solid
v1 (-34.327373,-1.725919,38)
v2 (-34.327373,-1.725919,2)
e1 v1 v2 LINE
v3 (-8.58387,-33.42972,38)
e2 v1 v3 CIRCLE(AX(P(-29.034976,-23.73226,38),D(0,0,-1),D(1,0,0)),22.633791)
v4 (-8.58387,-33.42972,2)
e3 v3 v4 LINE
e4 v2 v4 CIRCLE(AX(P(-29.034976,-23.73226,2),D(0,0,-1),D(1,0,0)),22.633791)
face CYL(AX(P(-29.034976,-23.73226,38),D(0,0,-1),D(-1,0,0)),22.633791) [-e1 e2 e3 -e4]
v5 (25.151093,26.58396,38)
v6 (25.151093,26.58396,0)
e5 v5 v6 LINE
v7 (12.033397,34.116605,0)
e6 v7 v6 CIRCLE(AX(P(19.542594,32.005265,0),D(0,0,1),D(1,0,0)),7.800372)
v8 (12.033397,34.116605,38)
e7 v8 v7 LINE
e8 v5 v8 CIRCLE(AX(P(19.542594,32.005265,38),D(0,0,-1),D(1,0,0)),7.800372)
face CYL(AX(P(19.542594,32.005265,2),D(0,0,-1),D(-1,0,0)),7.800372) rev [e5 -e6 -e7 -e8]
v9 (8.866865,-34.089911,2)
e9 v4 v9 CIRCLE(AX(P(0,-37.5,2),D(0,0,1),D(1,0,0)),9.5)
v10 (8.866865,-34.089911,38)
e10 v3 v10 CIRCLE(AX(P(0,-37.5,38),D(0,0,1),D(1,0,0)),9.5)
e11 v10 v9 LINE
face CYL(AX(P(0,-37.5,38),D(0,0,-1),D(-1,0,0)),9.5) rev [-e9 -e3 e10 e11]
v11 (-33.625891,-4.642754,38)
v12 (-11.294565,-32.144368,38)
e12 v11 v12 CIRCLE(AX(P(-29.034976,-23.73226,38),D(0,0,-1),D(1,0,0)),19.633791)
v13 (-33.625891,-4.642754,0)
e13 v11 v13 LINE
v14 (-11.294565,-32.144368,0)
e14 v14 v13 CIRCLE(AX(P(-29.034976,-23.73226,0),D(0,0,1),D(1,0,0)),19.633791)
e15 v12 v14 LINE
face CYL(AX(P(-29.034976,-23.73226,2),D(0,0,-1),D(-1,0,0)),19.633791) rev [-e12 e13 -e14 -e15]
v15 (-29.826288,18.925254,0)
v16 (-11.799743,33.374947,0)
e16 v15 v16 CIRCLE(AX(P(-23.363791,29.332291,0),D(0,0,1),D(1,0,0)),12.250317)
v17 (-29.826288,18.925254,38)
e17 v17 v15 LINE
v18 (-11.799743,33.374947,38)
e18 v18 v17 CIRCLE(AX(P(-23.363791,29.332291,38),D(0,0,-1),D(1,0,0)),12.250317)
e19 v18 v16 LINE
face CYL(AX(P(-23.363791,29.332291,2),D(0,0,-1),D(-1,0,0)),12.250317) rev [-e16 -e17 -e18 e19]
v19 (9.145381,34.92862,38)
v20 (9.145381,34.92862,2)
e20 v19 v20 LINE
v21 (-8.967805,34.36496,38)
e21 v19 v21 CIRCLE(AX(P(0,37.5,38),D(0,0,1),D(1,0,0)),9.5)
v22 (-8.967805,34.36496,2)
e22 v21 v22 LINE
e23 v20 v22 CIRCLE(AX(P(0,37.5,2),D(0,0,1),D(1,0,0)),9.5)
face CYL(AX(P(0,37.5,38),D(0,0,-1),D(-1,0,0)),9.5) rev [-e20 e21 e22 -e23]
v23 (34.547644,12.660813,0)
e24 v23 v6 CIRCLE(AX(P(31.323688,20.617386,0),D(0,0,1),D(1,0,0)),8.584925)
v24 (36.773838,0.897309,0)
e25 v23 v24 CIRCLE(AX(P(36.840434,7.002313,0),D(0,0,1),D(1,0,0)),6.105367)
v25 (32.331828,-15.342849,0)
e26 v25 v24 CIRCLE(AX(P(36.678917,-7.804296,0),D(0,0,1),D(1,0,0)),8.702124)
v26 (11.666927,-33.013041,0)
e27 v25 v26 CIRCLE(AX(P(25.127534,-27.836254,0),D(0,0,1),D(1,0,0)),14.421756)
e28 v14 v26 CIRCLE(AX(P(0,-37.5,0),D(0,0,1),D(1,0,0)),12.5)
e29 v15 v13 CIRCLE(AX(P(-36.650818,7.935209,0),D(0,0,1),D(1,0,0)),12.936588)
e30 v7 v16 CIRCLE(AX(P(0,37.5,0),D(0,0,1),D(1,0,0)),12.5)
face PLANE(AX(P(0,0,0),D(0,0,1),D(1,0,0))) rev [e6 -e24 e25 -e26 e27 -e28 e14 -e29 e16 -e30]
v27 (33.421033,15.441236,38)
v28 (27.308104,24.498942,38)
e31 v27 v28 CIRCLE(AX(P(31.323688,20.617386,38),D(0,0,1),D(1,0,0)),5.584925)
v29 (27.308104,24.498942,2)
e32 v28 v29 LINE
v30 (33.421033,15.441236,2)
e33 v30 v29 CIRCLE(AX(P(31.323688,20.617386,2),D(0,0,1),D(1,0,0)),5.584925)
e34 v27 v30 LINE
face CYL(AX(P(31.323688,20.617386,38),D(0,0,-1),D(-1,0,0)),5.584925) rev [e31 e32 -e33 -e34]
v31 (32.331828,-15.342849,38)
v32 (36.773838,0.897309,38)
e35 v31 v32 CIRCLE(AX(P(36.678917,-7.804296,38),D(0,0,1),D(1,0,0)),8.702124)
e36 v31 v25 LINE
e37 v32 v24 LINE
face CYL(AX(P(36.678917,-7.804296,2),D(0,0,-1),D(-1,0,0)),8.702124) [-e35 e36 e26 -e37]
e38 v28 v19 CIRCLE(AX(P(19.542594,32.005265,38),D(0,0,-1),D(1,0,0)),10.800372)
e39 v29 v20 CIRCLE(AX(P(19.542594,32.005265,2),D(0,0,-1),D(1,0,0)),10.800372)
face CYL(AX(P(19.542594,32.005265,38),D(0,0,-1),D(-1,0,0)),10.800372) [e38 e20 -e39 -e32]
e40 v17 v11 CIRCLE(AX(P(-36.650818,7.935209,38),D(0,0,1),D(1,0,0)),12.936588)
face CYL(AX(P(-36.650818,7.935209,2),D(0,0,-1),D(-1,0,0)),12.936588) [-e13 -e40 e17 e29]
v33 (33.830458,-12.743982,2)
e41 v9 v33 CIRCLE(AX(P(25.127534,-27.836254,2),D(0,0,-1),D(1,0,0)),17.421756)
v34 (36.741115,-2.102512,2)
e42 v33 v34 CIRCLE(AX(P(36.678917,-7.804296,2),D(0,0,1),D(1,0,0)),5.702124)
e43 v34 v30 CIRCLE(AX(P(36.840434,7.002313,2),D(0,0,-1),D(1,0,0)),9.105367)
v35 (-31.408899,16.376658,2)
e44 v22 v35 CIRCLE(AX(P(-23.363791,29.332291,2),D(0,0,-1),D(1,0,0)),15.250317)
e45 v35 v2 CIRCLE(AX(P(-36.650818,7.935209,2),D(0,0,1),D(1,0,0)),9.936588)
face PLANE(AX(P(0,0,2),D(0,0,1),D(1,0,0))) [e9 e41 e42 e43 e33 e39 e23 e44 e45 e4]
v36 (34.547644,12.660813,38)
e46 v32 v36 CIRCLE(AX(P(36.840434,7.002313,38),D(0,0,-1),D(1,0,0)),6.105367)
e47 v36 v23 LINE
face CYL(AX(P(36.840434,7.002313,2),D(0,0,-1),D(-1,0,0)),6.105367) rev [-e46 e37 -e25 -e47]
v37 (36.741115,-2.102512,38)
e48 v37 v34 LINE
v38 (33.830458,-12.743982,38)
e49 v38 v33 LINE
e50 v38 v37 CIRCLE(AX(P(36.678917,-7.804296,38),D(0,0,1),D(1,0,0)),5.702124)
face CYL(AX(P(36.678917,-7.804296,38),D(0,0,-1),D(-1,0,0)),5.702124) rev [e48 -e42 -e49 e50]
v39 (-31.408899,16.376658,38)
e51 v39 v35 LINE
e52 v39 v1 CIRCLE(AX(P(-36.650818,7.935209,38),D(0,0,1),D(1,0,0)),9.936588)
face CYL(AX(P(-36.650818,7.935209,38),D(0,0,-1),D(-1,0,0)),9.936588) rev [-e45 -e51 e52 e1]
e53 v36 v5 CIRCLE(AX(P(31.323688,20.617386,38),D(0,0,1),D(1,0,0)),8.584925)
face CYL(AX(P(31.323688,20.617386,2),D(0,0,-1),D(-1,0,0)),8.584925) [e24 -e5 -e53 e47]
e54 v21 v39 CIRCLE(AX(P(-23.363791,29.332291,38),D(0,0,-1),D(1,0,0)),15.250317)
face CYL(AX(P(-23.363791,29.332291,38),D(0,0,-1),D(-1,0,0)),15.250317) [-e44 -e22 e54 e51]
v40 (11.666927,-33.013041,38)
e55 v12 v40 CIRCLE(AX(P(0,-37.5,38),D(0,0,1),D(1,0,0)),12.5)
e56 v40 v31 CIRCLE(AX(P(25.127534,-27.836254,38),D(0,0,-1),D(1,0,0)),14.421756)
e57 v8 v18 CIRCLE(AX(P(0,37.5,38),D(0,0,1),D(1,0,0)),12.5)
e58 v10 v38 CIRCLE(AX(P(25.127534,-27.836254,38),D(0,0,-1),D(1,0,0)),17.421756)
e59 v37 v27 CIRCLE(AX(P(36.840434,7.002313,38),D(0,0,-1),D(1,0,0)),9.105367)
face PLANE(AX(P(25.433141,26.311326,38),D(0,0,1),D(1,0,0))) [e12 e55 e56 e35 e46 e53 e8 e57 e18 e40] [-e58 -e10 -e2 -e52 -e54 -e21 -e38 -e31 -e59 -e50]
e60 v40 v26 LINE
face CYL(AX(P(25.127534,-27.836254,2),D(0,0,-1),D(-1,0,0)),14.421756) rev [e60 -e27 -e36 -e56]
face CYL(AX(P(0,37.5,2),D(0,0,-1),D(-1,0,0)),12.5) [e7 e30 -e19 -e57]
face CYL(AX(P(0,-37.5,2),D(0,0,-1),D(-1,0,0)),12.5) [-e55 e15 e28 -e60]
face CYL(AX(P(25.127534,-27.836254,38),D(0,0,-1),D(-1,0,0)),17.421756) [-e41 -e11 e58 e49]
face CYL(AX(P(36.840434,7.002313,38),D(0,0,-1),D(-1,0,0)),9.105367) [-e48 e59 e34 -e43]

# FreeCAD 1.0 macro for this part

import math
import FreeCAD as App
import Part
import Sketcher

V = App.Vector
Q = App.Units.Quantity

doc = App.newDocument("Part")
body = doc.addObject("PartDesign::Body", "Body")

# Sketch on XY plane
sketch1 = body.newObject("Sketcher::SketchObject", "Sketch")
sketch1.AttachmentSupport = (doc.getObject("XY_Plane"), [""])
sketch1.MapMode = "FlatFace"
sketch1.addGeometry([
    Part.ArcOfCircle(Part.Circle(V(37, 7, 0), V(0, 0, 1), 6), math.radians(112), math.radians(269)),  # 0
    Part.ArcOfCircle(Part.Circle(V(31, 21, 0), V(0, 0, 1), 9), math.radians(-68), math.radians(136)),  # 1
    Part.ArcOfCircle(Part.Circle(V(20, 32, 0), V(0, 0, 1), 8), math.radians(164), math.radians(316)),  # 2
    Part.ArcOfCircle(Part.Circle(V(0, 38, 0), V(0, 0, 1), 12), math.radians(-16), math.radians(199)),  # 3
    Part.ArcOfCircle(Part.Circle(V(-23, 29, 0), V(0, 0, 1), 12), math.radians(-122), math.radians(19)),  # 4
    Part.ArcOfCircle(Part.Circle(V(-37, 8, 0), V(0, 0, 1), 13), math.radians(58), math.radians(284)),  # 5
    Part.ArcOfCircle(Part.Circle(V(-29, -24, 0), V(0, 0, 1), 20), math.radians(-25), math.radians(104)),  # 6
    Part.ArcOfCircle(Part.Circle(V(0, -38, 0), V(0, 0, 1), 12), math.radians(155), math.radians(381)),  # 7
    Part.ArcOfCircle(Part.Circle(V(25, -28, 0), V(0, 0, 1), 14), math.radians(60), math.radians(201)),  # 8
    Part.ArcOfCircle(Part.Circle(V(37, -8, 0), V(0, 0, 1), 9), math.radians(-120), math.radians(89)),  # 9
], False)
sketch1.addConstraint([
    Sketcher.Constraint("Tangent", 0, 1, 1, 1),
    Sketcher.Constraint("Tangent", 1, 2, 2, 2),
    Sketcher.Constraint("Tangent", 2, 1, 3, 1),
    Sketcher.Constraint("Tangent", 3, 2, 4, 2),
    Sketcher.Constraint("Tangent", 4, 1, 5, 1),
    Sketcher.Constraint("Tangent", 5, 2, 6, 2),
    Sketcher.Constraint("Tangent", 6, 1, 7, 1),
    Sketcher.Constraint("Tangent", 7, 2, 8, 2),
    Sketcher.Constraint("Tangent", 8, 1, 9, 1),
    Sketcher.Constraint("Tangent", 9, 2, 0, 2),
    Sketcher.Constraint("Equal", 3, 7),
    Sketcher.Constraint("Symmetric", 3, 3, 7, 3, -1, 1),
    Sketcher.Constraint("PointOnObject", 3, 3, -2),
    Sketcher.Constraint("Radius", 3, Q("12.5 mm")),
    Sketcher.Constraint("DistanceY", -1, 1, 3, 3, Q("37.5 mm")),
    Sketcher.Constraint("Radius", 5, Q("12.936588 mm")),
    Sketcher.Constraint("Radius", 6, Q("19.633791 mm")),
    Sketcher.Constraint("Radius", 0, Q("6.105367 mm")),
    Sketcher.Constraint("Radius", 1, Q("8.584925 mm")),
    Sketcher.Constraint("Radius", 2, Q("7.800372 mm")),
    Sketcher.Constraint("Radius", 4, Q("12.250317 mm")),
    Sketcher.Constraint("Radius", 8, Q("14.421756 mm")),
    Sketcher.Constraint("Radius", 9, Q("8.702124 mm")),
    Sketcher.Constraint("DistanceX", 8, 3, 0, 3, Q("11.712901 mm")),
    Sketcher.Constraint("DistanceY", 0, 3, 0, 1, Q("5.6585 mm")),
    Sketcher.Constraint("DistanceX", 2, 3, 1, 2, Q("5.608498 mm")),
    Sketcher.Constraint("DistanceX", 5, 2, 4, 3, Q("10.262101 mm")),
    Sketcher.Constraint("DistanceY", 5, 2, 3, 2, Q("38.017701 mm")),
    Sketcher.Constraint("DistanceX", 6, 1, 8, 3, Q("36.422099 mm")),
])
pad1 = body.newObject("PartDesign::Pad", "Pad")
pad1.Profile = sketch1
pad1.Length = 2

# Sketch on XY plane
sketch2 = body.newObject("Sketcher::SketchObject", "Sketch001")
sketch2.AttachmentSupport = (doc.getObject("XY_Plane"), [""])
sketch2.MapMode = "FlatFace"
sketch2.AttachmentOffset = App.Placement(V(0, 0, 2), App.Rotation())
sketch2.addGeometry([
    Part.ArcOfCircle(Part.Circle(V(37, 7, 0), V(0, 0, 1), 6), math.radians(112), math.radians(269)),  # 0
    Part.ArcOfCircle(Part.Circle(V(31, 21, 0), V(0, 0, 1), 9), math.radians(-68), math.radians(136)),  # 1
    Part.ArcOfCircle(Part.Circle(V(20, 32, 0), V(0, 0, 1), 8), math.radians(164), math.radians(316)),  # 2
    Part.ArcOfCircle(Part.Circle(V(0, 37, 0), V(0, 0, 1), 12), math.radians(-16), math.radians(199)),  # 3
    Part.ArcOfCircle(Part.Circle(V(-23, 29, 0), V(0, 0, 1), 12), math.radians(-122), math.radians(19)),  # 4
    Part.ArcOfCircle(Part.Circle(V(-37, 8, 0), V(0, 0, 1), 13), math.radians(58), math.radians(284)),  # 5
    Part.ArcOfCircle(Part.Circle(V(-29, -24, 0), V(0, 0, 1), 20), math.radians(-25), math.radians(104)),  # 6
    Part.ArcOfCircle(Part.Circle(V(0, -38, 0), V(0, 0, 1), 12), math.radians(155), math.radians(381)),  # 7
    Part.ArcOfCircle(Part.Circle(V(25, -28, 0), V(0, 0, 1), 14), math.radians(60), math.radians(201)),  # 8
    Part.ArcOfCircle(Part.Circle(V(37, -8, 0), V(0, 0, 1), 9), math.radians(-120), math.radians(89)),  # 9
    Part.ArcOfCircle(Part.Circle(V(-23, 29, 0), V(0, 0, 1), 15), math.radians(-122), math.radians(19)),  # 10
    Part.ArcOfCircle(Part.Circle(V(0, 38, 0), V(0, 0, 1), 10), math.radians(-16), math.radians(199)),  # 11
    Part.ArcOfCircle(Part.Circle(V(20, 32, 0), V(0, 0, 1), 11), math.radians(164), math.radians(316)),  # 12
    Part.ArcOfCircle(Part.Circle(V(31, 21, 0), V(0, 0, 1), 6), math.radians(-68), math.radians(136)),  # 13
    Part.ArcOfCircle(Part.Circle(V(37, 7, 0), V(0, 0, 1), 9), math.radians(112), math.radians(269)),  # 14
    Part.ArcOfCircle(Part.Circle(V(37, -8, 0), V(0, 0, 1), 6), math.radians(-120), math.radians(89)),  # 15
    Part.ArcOfCircle(Part.Circle(V(25, -28, 0), V(0, 0, 1), 17), math.radians(60), math.radians(201)),  # 16
    Part.ArcOfCircle(Part.Circle(V(0, -38, 0), V(0, 0, 1), 10), math.radians(155), math.radians(381)),  # 17
    Part.ArcOfCircle(Part.Circle(V(-29, -24, 0), V(0, 0, 1), 23), math.radians(-25), math.radians(104)),  # 18
    Part.ArcOfCircle(Part.Circle(V(-37, 8, 0), V(0, 0, 1), 10), math.radians(58), math.radians(284)),  # 19
], False)
sketch2.addConstraint([
    Sketcher.Constraint("Tangent", 0, 1, 1, 1),
    Sketcher.Constraint("Tangent", 1, 2, 2, 2),
    Sketcher.Constraint("Tangent", 2, 1, 3, 1),
    Sketcher.Constraint("Tangent", 3, 2, 4, 2),
    Sketcher.Constraint("Tangent", 4, 1, 5, 1),
    Sketcher.Constraint("Tangent", 5, 2, 6, 2),
    Sketcher.Constraint("Tangent", 6, 1, 7, 1),
    Sketcher.Constraint("Tangent", 7, 2, 8, 2),
    Sketcher.Constraint("Tangent", 8, 1, 9, 1),
    Sketcher.Constraint("Tangent", 9, 2, 0, 2),
    Sketcher.Constraint("Tangent", 10, 2, 11, 2),
    Sketcher.Constraint("Tangent", 11, 1, 12, 1),
    Sketcher.Constraint("Tangent", 12, 2, 13, 2),
    Sketcher.Constraint("Tangent", 13, 1, 14, 1),
    Sketcher.Constraint("Tangent", 14, 2, 15, 2),
    Sketcher.Constraint("Tangent", 15, 1, 16, 1),
    Sketcher.Constraint("Tangent", 16, 2, 17, 2),
    Sketcher.Constraint("Tangent", 17, 1, 18, 1),
    Sketcher.Constraint("Tangent", 18, 2, 19, 2),
    Sketcher.Constraint("Tangent", 19, 1, 10, 1),
    Sketcher.Constraint("Coincident", 10, 3, 4, 3),
    Sketcher.Constraint("Coincident", 11, 3, 3, 3),
    Sketcher.Constraint("Coincident", 12, 3, 2, 3),
    Sketcher.Constraint("Coincident", 13, 3, 1, 3),
    Sketcher.Constraint("Coincident", 14, 3, 0, 3),
    Sketcher.Constraint("Coincident", 15, 3, 9, 3),
    Sketcher.Constraint("Coincident", 16, 3, 8, 3),
    Sketcher.Constraint("Coincident", 17, 3, 7, 3),
    Sketcher.Constraint("Coincident", 18, 3, 6, 3),
    Sketcher.Constraint("Equal", 3, 7),
    Sketcher.Constraint("Symmetric", 3, 3, 7, 3, -1, 1),
    Sketcher.Constraint("PointOnObject", 3, 3, -2),
    Sketcher.Constraint("Radius", 3, Q("12.5 mm")),
    Sketcher.Constraint("Radius", 11, Q("9.5 mm")),
    Sketcher.Constraint("DistanceY", -1, 1, 3, 3, Q("37.5 mm")),
    Sketcher.Constraint("Radius", 5, Q("12.936588 mm")),
    Sketcher.Constraint("Radius", 6, Q("19.633791 mm")),
    Sketcher.Constraint("Radius", 19, Q("9.936588 mm")),
    Sketcher.Constraint("Radius", 0, Q("6.105367 mm")),
    Sketcher.Constraint("Radius", 1, Q("8.584925 mm")),
    Sketcher.Constraint("Radius", 2, Q("7.800372 mm")),
    Sketcher.Constraint("Radius", 4, Q("12.250317 mm")),
    Sketcher.Constraint("Radius", 8, Q("14.421756 mm")),
    Sketcher.Constraint("Radius", 9, Q("8.702124 mm")),
    Sketcher.Constraint("DistanceX", 19, 1, -1, 1, Q("31.408899 mm")),
    Sketcher.Constraint("DistanceX", 8, 3, 0, 3, Q("11.712901 mm")),
    Sketcher.Constraint("DistanceY", 0, 3, 0, 1, Q("5.6585 mm")),
    Sketcher.Constraint("DistanceX", 2, 3, 1, 2, Q("5.608498 mm")),
    Sketcher.Constraint("DistanceX", 4, 3, -1, 1, Q("23.363791 mm")),
    Sketcher.Constraint("DistanceY", -1, 1, 1, 2, Q("26.58396 mm")),
])
pad2 = body.newObject("PartDesign::Pad", "Pad001")
pad2.Profile = sketch2
pad2.Length = 36

doc.recompute()
